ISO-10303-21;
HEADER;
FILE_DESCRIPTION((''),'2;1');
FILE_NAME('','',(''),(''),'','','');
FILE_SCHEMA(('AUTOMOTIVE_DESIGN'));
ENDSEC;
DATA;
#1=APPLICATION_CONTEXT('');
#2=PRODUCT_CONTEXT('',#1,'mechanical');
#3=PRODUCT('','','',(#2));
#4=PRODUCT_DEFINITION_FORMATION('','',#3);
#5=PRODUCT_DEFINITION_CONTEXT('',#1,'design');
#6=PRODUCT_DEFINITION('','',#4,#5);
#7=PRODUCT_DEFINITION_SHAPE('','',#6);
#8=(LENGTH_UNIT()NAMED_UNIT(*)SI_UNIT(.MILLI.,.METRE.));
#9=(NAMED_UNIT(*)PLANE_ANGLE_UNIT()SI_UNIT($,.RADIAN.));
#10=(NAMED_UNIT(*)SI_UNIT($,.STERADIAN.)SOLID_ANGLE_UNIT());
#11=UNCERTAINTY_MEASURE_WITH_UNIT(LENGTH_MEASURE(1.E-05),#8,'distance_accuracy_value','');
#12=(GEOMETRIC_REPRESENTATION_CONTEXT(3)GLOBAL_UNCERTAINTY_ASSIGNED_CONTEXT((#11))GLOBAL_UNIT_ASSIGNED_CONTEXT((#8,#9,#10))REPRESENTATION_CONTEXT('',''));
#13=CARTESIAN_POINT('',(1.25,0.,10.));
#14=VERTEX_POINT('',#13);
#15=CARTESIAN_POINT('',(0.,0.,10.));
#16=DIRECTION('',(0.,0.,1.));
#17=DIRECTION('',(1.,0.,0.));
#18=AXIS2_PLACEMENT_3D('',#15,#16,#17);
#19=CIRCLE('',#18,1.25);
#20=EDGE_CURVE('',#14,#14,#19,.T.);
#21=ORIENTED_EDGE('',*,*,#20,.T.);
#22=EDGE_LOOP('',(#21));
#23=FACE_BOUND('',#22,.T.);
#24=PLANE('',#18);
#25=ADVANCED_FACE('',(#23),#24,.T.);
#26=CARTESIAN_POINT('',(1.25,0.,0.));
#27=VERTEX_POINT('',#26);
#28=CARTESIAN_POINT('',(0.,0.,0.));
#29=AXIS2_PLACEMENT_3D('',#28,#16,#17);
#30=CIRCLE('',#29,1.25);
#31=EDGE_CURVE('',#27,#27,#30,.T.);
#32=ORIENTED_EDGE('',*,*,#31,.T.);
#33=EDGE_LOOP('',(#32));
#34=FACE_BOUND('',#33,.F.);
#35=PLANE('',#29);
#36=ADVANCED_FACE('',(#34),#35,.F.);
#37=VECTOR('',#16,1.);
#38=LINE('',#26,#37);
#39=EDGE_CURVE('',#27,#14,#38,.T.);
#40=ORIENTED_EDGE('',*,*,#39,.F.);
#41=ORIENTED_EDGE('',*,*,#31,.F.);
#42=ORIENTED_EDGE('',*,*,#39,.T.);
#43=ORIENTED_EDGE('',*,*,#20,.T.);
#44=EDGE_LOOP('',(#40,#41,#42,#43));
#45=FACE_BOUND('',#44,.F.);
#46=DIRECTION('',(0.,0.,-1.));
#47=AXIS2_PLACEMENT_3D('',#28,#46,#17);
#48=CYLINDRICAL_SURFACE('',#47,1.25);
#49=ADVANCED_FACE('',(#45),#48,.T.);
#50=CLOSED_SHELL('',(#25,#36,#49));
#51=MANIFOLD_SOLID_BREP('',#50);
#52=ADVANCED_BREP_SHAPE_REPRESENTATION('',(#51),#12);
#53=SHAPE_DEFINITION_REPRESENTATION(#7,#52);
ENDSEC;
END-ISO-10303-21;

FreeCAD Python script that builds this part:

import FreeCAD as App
import Part
import Sketcher

V = App.Vector

doc = App.newDocument("Part")
params = doc.addObject("Spreadsheet::Sheet", "Params")
for row, (alias, value) in enumerate([
    ("sketch1_diameter", "2.5 mm"),
    ("pad1_length", "10 mm"),
], start=1):
    params.set(f"A{row}", alias)
    params.set(f"B{row}", "=" + value)
    params.setAlias(f"B{row}", alias)

body = doc.addObject("PartDesign::Body", "Body")

sketch1 = body.newObject("Sketcher::SketchObject", "Sketch")
sketch1.AttachmentSupport = (doc.getObject("XY_Plane"), [""])
sketch1.MapMode = "FlatFace"
sketch1.addGeometry(Part.Circle(V(0, 0, 0), V(0, 0, 1), 1.2), False)
sketch1.addConstraint([
    Sketcher.Constraint("Coincident", 0, 3, -1, 1),
    Sketcher.Constraint("Diameter", 0, 2.5),
])
sketch1.setExpression("Constraints[1]", "Params.sketch1_diameter")
pad1 = body.newObject("PartDesign::Pad", "Pad")
pad1.Profile = sketch1
pad1.setExpression("Length", "Params.pad1_length")

doc.recompute()
